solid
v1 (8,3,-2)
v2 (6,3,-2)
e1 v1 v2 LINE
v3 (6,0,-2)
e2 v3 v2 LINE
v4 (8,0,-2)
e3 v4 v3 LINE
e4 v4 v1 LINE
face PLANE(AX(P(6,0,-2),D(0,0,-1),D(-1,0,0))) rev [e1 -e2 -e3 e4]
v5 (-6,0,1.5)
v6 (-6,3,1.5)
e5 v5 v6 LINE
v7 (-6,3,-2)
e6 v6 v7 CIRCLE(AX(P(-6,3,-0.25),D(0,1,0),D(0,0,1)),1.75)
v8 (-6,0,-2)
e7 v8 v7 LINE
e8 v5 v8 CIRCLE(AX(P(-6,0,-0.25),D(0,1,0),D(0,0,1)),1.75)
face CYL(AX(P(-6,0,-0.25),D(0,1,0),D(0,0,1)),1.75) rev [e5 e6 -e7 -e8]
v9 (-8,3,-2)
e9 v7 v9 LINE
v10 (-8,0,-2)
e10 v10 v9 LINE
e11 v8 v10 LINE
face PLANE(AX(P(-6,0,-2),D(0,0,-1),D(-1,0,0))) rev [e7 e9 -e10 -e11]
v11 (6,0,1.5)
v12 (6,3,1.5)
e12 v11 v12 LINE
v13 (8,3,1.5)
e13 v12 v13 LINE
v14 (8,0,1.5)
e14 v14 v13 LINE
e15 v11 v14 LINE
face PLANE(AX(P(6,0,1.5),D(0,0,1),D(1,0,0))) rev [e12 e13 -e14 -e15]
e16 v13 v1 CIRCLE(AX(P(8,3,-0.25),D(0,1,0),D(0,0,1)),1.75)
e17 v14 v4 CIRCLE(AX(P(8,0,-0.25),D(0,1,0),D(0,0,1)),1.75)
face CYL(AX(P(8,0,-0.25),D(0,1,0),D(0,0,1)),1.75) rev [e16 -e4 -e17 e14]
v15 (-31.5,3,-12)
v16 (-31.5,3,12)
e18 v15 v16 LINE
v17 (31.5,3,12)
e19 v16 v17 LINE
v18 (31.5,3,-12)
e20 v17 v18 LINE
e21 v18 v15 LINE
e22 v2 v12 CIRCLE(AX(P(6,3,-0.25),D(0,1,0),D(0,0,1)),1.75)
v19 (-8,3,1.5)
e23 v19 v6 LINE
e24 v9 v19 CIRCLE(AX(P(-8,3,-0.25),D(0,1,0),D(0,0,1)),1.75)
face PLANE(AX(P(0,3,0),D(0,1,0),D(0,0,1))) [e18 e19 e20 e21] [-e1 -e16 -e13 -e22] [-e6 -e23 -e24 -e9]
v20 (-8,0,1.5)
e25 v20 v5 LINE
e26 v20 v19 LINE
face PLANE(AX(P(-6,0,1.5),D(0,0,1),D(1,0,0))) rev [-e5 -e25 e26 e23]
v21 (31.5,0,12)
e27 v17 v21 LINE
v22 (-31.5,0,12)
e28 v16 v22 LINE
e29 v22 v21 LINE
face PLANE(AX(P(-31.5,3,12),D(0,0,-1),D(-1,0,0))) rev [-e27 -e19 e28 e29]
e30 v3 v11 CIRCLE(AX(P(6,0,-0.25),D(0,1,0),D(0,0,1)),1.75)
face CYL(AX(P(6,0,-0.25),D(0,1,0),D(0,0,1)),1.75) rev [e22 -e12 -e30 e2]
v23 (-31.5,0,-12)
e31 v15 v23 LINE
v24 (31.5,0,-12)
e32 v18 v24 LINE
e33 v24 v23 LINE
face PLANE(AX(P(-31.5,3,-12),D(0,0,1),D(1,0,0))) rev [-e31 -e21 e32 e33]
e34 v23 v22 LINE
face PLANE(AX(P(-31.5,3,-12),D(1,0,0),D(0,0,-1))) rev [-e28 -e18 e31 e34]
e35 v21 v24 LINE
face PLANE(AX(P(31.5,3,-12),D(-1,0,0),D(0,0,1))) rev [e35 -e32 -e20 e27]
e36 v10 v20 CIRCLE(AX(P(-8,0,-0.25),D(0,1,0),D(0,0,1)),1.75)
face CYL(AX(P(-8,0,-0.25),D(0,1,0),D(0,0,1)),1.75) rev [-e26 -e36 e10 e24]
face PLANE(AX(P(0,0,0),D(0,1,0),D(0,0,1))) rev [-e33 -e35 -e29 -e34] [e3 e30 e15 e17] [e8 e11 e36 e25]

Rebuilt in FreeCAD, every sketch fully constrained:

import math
import FreeCAD as App
import Part
import Sketcher
Q = App.Units.Quantity


def add_polygon(sketch, points):
    """Adds a closed chain of lines whose ends are joined by coincident constraints."""
    first, n = sketch.GeometryCount, len(points)
    for a, b in zip(points, points[1:] + points[:1]):
        sketch.addGeometry(Part.LineSegment(App.Vector(*a, 0), App.Vector(*b, 0)), False)
    for i in range(n):
        sketch.addConstraint(Sketcher.Constraint("Coincident", first + i, 2, first + (i + 1) % n, 1))

doc = App.newDocument("Part")
body = doc.addObject("PartDesign::Body", "Body")

sketch1 = body.newObject("Sketcher::SketchObject", "Sketch")
sketch1.AttachmentSupport = (doc.getObject("XZ_Plane"), [""])
sketch1.MapMode = "FlatFace"
add_polygon(sketch1, [(-32, -12), (-32, 12), (32, 12), (32, -12)])
sketch1.addConstraint([
    Sketcher.Constraint("Vertical", 0),
    Sketcher.Constraint("Horizontal", 1),
    Sketcher.Constraint("Vertical", 2),
    Sketcher.Constraint("Horizontal", 3),
    Sketcher.Constraint("Symmetric", 0, 2, 2, 2, -1, 1),
    Sketcher.Constraint("DistanceX", 1, 1, 1, 2, Q("63 mm")),
    Sketcher.Constraint("DistanceY", 0, 1, 0, 2, Q("24 mm")),
])
pad1 = body.newObject("PartDesign::Pad", "Pad")
pad1.Profile = sketch1
pad1.Length = 3
pad1.Reversed = True

sketch2 = body.newObject("Sketcher::SketchObject", "Sketch001")
sketch2.AttachmentSupport = (doc.getObject("XZ_Plane"), [""])
sketch2.MapMode = "FlatFace"
sketch2.AttachmentOffset = App.Placement(App.Vector(0, 0, -3), App.Rotation())
sketch2.addGeometry([
    Part.LineSegment(App.Vector(-8, 1.5, 0), App.Vector(-6, 1.5, 0)),
    Part.ArcOfCircle(Part.Circle(App.Vector(-6, -0.2, 0), App.Vector(0, 0, 1), 1.8), math.radians(-90), math.radians(90)),
    Part.LineSegment(App.Vector(-6, -2, 0), App.Vector(-8, -2, 0)),
    Part.ArcOfCircle(Part.Circle(App.Vector(-8, -0.2, 0), App.Vector(0, 0, 1), 1.8), math.radians(90), math.radians(270)),
    Part.LineSegment(App.Vector(8, -2, 0), App.Vector(6, -2, 0)),
    Part.ArcOfCircle(Part.Circle(App.Vector(6, -0.2, 0), App.Vector(0, 0, 1), 1.8), math.radians(90), math.radians(270)),
    Part.LineSegment(App.Vector(6, 1.5, 0), App.Vector(8, 1.5, 0)),
    Part.ArcOfCircle(Part.Circle(App.Vector(8, -0.2, 0), App.Vector(0, 0, 1), 1.8), math.radians(-90), math.radians(90)),
], False)
sketch2.addConstraint([
    Sketcher.Constraint("Tangent", 0, 2, 1, 2),
    Sketcher.Constraint("Tangent", 1, 1, 2, 1),
    Sketcher.Constraint("Tangent", 2, 2, 3, 2),
    Sketcher.Constraint("Tangent", 3, 1, 0, 1),
    Sketcher.Constraint("Tangent", 4, 2, 5, 2),
    Sketcher.Constraint("Tangent", 5, 1, 6, 1),
    Sketcher.Constraint("Tangent", 6, 2, 7, 2),
    Sketcher.Constraint("Tangent", 7, 1, 4, 1),
    Sketcher.Constraint("Horizontal", 0),
    Sketcher.Constraint("Horizontal", 2),
    Sketcher.Constraint("Horizontal", 4),
    Sketcher.Constraint("Horizontal", 6),
    Sketcher.Constraint("Equal", 3, 5),
    Sketcher.Constraint("Symmetric", 1, 3, 5, 3, -2),
    Sketcher.Constraint("Equal", 2, 4),
    Sketcher.Constraint("DistanceX", 0, 1, 0, 2, Q("2 mm")),
    Sketcher.Constraint("Radius", 1, Q("1.75 mm")),
    Sketcher.Constraint("DistanceX", 1, 3, -1, 1, Q("6 mm")),
    Sketcher.Constraint("DistanceY", 1, 1, -1, 1, Q("2 mm")),
])
pocket1 = body.newObject("PartDesign::Pocket", "Pocket")
pocket1.Profile = sketch2
pocket1.Length = 3
pocket1.Reversed = True

doc.recompute()
